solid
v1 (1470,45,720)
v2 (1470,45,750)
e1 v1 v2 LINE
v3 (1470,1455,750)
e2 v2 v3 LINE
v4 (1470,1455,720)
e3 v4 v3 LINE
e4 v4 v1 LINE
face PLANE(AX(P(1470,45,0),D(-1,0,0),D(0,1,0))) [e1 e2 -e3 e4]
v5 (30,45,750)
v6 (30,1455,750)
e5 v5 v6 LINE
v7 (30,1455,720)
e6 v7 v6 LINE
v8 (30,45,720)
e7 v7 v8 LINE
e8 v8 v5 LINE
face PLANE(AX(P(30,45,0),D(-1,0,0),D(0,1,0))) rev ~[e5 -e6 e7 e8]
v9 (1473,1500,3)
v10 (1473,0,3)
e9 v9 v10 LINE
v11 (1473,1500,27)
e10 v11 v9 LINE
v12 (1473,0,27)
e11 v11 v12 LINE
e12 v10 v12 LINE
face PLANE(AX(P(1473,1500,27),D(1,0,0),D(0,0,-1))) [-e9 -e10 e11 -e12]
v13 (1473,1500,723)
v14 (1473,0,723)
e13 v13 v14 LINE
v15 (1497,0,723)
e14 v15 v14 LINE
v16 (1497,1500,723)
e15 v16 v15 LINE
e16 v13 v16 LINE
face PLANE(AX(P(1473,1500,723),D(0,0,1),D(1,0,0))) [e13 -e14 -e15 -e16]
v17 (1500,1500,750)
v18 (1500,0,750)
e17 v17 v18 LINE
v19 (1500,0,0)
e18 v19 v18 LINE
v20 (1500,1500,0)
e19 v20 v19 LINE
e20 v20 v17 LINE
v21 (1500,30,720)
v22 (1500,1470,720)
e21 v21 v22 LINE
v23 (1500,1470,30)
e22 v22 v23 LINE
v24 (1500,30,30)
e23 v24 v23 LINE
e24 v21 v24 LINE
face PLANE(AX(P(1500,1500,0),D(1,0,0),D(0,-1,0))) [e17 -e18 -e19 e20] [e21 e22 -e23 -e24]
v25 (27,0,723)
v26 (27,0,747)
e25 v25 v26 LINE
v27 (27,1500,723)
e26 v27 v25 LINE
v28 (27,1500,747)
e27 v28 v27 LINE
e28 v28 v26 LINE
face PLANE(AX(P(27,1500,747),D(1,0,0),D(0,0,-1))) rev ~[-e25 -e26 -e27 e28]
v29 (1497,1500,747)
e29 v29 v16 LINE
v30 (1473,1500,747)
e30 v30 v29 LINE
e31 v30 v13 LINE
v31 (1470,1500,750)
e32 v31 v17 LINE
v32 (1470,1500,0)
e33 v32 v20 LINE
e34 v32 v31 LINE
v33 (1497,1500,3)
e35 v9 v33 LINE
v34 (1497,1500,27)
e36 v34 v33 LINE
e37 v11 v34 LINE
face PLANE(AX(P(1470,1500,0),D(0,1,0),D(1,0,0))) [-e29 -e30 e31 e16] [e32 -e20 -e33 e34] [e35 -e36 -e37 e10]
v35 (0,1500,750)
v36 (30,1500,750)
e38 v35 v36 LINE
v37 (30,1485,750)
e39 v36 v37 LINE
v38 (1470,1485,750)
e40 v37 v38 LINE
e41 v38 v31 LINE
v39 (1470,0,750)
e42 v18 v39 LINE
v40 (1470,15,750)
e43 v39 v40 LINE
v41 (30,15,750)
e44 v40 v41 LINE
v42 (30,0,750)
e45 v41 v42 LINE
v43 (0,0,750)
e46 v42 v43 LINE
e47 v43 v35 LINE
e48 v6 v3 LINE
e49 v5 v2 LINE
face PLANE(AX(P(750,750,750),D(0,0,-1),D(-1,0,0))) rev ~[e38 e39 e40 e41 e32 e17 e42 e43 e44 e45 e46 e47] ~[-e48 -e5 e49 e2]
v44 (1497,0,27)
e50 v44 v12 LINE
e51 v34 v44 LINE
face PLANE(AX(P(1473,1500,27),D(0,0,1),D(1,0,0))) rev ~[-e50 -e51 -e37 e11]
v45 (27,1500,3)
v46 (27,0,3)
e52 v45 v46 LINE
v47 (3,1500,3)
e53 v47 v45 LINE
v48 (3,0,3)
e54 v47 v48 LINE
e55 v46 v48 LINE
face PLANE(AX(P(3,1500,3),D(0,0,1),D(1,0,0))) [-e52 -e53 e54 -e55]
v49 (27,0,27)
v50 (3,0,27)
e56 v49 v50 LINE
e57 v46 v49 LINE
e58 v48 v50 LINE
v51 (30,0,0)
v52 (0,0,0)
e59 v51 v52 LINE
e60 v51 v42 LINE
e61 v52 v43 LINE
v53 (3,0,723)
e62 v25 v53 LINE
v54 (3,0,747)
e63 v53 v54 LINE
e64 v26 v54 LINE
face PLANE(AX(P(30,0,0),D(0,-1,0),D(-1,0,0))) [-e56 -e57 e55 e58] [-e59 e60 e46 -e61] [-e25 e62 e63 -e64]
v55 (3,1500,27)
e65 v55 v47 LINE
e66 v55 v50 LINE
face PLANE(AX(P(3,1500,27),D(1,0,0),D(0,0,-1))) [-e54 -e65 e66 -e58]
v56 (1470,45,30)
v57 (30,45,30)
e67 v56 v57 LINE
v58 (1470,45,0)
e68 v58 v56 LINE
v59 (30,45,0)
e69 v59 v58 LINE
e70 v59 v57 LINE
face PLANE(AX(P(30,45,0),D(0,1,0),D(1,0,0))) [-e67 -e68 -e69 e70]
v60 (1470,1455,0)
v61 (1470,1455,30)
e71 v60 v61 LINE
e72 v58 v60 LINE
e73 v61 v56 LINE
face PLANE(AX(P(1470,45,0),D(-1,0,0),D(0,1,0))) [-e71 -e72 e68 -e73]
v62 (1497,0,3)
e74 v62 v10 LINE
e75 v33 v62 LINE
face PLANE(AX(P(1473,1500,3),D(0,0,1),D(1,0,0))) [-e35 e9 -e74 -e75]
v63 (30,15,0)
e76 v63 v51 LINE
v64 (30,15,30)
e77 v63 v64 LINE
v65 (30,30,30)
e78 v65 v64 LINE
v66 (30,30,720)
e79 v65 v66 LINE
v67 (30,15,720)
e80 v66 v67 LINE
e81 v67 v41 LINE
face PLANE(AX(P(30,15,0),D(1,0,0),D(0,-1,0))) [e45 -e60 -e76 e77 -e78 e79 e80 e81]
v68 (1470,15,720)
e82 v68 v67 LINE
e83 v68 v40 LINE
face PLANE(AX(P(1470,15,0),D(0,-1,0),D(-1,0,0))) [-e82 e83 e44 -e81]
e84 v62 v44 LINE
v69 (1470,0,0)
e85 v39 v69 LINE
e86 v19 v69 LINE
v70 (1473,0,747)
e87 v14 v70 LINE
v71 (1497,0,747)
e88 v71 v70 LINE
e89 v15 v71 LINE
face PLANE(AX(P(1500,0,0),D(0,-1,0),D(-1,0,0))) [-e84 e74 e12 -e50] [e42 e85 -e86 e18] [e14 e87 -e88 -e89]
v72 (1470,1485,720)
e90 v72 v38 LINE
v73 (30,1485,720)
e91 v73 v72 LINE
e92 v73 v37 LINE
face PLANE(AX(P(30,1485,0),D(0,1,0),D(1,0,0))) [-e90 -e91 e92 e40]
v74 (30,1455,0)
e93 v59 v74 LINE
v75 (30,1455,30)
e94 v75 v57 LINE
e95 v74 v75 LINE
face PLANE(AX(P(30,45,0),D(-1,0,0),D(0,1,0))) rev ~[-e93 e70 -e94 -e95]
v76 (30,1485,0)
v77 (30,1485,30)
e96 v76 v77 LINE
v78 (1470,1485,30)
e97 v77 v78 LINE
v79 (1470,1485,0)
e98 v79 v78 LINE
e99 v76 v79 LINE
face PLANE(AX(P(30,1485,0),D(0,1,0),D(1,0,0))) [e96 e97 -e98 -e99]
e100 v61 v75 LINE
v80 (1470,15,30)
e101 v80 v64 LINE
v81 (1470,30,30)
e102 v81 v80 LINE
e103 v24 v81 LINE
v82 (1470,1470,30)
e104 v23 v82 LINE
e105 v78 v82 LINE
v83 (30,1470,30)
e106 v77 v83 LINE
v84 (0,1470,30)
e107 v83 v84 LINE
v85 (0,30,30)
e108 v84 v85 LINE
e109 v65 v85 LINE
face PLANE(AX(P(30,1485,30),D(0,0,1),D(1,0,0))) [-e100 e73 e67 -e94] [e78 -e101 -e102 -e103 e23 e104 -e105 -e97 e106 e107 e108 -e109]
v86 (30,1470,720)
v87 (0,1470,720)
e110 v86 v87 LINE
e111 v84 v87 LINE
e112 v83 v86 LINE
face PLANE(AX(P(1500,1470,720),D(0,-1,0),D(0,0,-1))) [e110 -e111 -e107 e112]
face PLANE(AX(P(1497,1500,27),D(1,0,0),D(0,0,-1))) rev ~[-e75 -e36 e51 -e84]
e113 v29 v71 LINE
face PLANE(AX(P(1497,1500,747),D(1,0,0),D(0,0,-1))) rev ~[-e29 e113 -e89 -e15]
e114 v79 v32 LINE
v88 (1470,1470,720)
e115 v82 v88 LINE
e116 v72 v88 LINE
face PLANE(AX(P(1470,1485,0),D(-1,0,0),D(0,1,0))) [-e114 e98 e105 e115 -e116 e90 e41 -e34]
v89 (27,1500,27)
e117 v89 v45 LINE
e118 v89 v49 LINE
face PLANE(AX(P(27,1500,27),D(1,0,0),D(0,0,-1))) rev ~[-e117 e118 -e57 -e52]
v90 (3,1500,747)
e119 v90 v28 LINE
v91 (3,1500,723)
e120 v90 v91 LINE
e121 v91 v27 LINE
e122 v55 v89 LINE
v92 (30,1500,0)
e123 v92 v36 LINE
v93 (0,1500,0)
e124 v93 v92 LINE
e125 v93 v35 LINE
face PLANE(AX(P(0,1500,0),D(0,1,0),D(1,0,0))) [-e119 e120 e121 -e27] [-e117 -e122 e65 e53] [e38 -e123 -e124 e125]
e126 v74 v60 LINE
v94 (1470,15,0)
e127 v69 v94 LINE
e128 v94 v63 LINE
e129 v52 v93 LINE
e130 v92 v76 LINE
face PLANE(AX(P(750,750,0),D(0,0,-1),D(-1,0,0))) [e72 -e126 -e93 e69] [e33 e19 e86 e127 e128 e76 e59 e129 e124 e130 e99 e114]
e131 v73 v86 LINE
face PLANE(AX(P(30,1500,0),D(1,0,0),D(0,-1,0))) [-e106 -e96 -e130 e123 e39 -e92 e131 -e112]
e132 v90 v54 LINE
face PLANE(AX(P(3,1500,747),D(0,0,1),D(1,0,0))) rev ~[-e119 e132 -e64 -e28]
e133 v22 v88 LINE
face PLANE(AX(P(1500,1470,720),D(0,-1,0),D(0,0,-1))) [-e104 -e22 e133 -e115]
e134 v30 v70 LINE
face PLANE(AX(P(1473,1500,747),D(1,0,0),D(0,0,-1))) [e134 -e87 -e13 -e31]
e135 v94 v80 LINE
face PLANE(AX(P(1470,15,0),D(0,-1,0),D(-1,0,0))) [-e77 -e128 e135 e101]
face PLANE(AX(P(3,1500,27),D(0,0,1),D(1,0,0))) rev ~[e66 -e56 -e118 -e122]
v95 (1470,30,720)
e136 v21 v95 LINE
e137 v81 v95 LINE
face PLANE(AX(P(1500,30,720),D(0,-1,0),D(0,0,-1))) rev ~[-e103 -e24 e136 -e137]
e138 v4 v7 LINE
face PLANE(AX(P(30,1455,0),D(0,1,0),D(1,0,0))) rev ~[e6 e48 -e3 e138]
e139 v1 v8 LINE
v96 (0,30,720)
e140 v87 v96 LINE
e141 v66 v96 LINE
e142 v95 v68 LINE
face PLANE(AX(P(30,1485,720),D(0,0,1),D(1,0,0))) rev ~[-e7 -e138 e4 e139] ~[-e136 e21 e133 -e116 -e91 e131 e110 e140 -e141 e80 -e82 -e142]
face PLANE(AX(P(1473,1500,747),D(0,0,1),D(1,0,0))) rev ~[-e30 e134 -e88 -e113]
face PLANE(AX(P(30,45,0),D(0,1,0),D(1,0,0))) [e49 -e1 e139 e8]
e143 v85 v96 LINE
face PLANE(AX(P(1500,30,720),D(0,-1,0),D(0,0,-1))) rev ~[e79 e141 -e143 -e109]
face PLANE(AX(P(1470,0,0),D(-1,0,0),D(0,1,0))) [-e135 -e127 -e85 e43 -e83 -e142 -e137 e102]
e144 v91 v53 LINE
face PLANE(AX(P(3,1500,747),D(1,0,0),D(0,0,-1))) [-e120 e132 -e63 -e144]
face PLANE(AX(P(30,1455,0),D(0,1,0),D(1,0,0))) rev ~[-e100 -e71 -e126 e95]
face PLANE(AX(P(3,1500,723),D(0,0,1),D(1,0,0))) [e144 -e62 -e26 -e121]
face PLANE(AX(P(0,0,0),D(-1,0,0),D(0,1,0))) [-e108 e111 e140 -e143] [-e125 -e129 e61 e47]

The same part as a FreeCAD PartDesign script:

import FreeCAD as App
import Part
import Sketcher
from FreeCAD import Vector


def add_polygon(sketch, points):
    """Adds a closed chain of lines whose ends are joined by coincident constraints."""
    first, n = sketch.GeometryCount, len(points)
    for a, b in zip(points, points[1:] + points[:1]):
        sketch.addGeometry(Part.LineSegment(App.Vector(*a, 0), App.Vector(*b, 0)), False)
    for i in range(n):
        sketch.addConstraint(Sketcher.Constraint("Coincident", first + i, 2, first + (i + 1) % n, 1))

doc = App.newDocument("Part")
params = doc.addObject("Spreadsheet::Sheet", "Params")
for row, (alias, value) in enumerate([
    ("sketch1_width", "30 mm"),
    ("sketch1_width2", "1440 mm"),
    ("sketch1_height", "15 mm"),
    ("sketch1_height2", "1500 mm"),
    ("sketch1_height3", "1410 mm"),
    ("pad1_length", "750 mm"),
    ("sketch2_width", "1440 mm"),
    ("sketch2_height", "690 mm"),
    ("sketch3_width", "1440 mm"),
    ("sketch3_height", "690 mm"),
    ("sketch4_width", "24 mm"),
], start=1):
    params.set(f"A{row}", alias)
    params.set(f"B{row}", "=" + value)
    params.setAlias(f"B{row}", alias)

body = doc.addObject("PartDesign::Body", "Body")

# Sketch on XY plane
sketch1 = body.newObject("Sketcher::SketchObject", "Sketch")
sketch1.AttachmentSupport = (doc.getObject("XY_Plane"), [""])
sketch1.MapMode = "FlatFace"
add_polygon(sketch1, [(30, 1485), (30, 1500), (0, 1500), (0, 0), (30, 0), (30, 15), (1470, 15), (1470, 0), (1500, 0), (1500, 1500), (1470, 1500), (1470, 1485)])  # lines 0-11
add_polygon(sketch1, [(30, 45), (30, 1455), (1470, 1455), (1470, 45)])  # lines 12-15
sketch1.addConstraint(Sketcher.Constraint("Vertical", 0))
sketch1.addConstraint(Sketcher.Constraint("Horizontal", 1))
sketch1.addConstraint(Sketcher.Constraint("Vertical", 2))
sketch1.addConstraint(Sketcher.Constraint("Horizontal", 3))
sketch1.addConstraint(Sketcher.Constraint("Vertical", 4))
sketch1.addConstraint(Sketcher.Constraint("Horizontal", 5))
sketch1.addConstraint(Sketcher.Constraint("Vertical", 6))
sketch1.addConstraint(Sketcher.Constraint("Horizontal", 7))
sketch1.addConstraint(Sketcher.Constraint("Vertical", 8))
sketch1.addConstraint(Sketcher.Constraint("Horizontal", 9))
sketch1.addConstraint(Sketcher.Constraint("Vertical", 10))
sketch1.addConstraint(Sketcher.Constraint("Horizontal", 11))
sketch1.addConstraint(Sketcher.Constraint("Vertical", 12))
sketch1.addConstraint(Sketcher.Constraint("Horizontal", 13))
sketch1.addConstraint(Sketcher.Constraint("Vertical", 14))
sketch1.addConstraint(Sketcher.Constraint("Horizontal", 15))
sketch1.addConstraint(Sketcher.Constraint("Coincident", 2, 2, -1, 1))
sketch1.addConstraint(Sketcher.Constraint("PointOnObject", 6, 2, -1))
sketch1.addConstraint(Sketcher.Constraint("Horizontal", 1, 2, 8, 2))
sketch1.addConstraint(Sketcher.Constraint("Vertical", 0, 2, 3, 2))
sketch1.addConstraint(Sketcher.Constraint("Vertical", 6, 2, 9, 2))
sketch1.addConstraint(Sketcher.Constraint("Vertical", 11, 2, 12, 2))
sketch1.addConstraint(Sketcher.Constraint("Vertical", 10, 2, 13, 2))
sketch1.addConstraint(Sketcher.Constraint("Equal", 3, 7))
sketch1.addConstraint(Sketcher.Constraint("Equal", 0, 4))
sketch1.addConstraint(Sketcher.Constraint("DistanceX", 1, 2, 1, 1, 30.0))
sketch1.addConstraint(Sketcher.Constraint("DistanceX", 5, 1, 5, 2, 1440.0))
sketch1.addConstraint(Sketcher.Constraint("DistanceY", 0, 1, 0, 2, 15.0))
sketch1.addConstraint(Sketcher.Constraint("DistanceY", 2, 2, 2, 1, 1500.0))
sketch1.addConstraint(Sketcher.Constraint("DistanceY", 12, 1, 12, 2, 1410.0))
sketch1.addConstraint(Sketcher.Constraint("DistanceY", -1, 1, 12, 2, 1455.0))
sketch1.setExpression("Constraints[41]", "Params.sketch1_width")
sketch1.setExpression("Constraints[42]", "Params.sketch1_width2")
sketch1.setExpression("Constraints[43]", "Params.sketch1_height")
sketch1.setExpression("Constraints[44]", "Params.sketch1_height2")
sketch1.setExpression("Constraints[45]", "Params.sketch1_height3")
pad1 = body.newObject("PartDesign::Pad", "Pad")
pad1.Profile = sketch1
pad1.setExpression("Length", "Params.pad1_length")

# Sketch on YZ plane
sketch2 = body.newObject("Sketcher::SketchObject", "Sketch001")
sketch2.AttachmentSupport = (doc.getObject("YZ_Plane"), [""])
sketch2.MapMode = "FlatFace"
sketch2.AttachmentOffset = App.Placement(Vector(0, 0, 1500), App.Rotation())
add_polygon(sketch2, [(1470, 720), (30, 720), (30, 30), (1470, 30)])  # lines 0-3
sketch2.addConstraint(Sketcher.Constraint("Horizontal", 0))
sketch2.addConstraint(Sketcher.Constraint("Vertical", 1))
sketch2.addConstraint(Sketcher.Constraint("Horizontal", 2))
sketch2.addConstraint(Sketcher.Constraint("Vertical", 3))
sketch2.addConstraint(Sketcher.Constraint("DistanceX", 0, 2, 0, 1, 1440.0))
sketch2.addConstraint(Sketcher.Constraint("DistanceY", 1, 2, 1, 1, 690.0))
sketch2.addConstraint(Sketcher.Constraint("DistanceX", -1, 1, 0, 2, 30.0))
sketch2.addConstraint(Sketcher.Constraint("DistanceY", -1, 1, 0, 2, 720.0))
sketch2.setExpression("Constraints[8]", "Params.sketch2_width")
sketch2.setExpression("Constraints[9]", "Params.sketch2_height")
pocket1 = body.newObject("PartDesign::Pocket", "Pocket")
pocket1.Profile = sketch2
pocket1.Type = "ThroughAll"

# Sketch on XZ plane
sketch3 = body.newObject("Sketcher::SketchObject", "Sketch002")
sketch3.AttachmentSupport = (doc.getObject("XZ_Plane"), [""])
sketch3.MapMode = "FlatFace"
sketch3.AttachmentOffset = App.Placement(Vector(0, 0, -1485), App.Rotation())
add_polygon(sketch3, [(30, 30), (30, 720), (1470, 720), (1470, 30)])  # lines 0-3
sketch3.addConstraint(Sketcher.Constraint("Vertical", 0))
sketch3.addConstraint(Sketcher.Constraint("Horizontal", 1))
sketch3.addConstraint(Sketcher.Constraint("Vertical", 2))
sketch3.addConstraint(Sketcher.Constraint("Horizontal", 3))
sketch3.addConstraint(Sketcher.Constraint("DistanceX", 1, 1, 1, 2, 1440.0))
sketch3.addConstraint(Sketcher.Constraint("DistanceY", 0, 1, 0, 2, 690.0))
sketch3.addConstraint(Sketcher.Constraint("DistanceX", -1, 1, 0, 2, 30.0))
sketch3.addConstraint(Sketcher.Constraint("DistanceY", -1, 1, 0, 2, 720.0))
sketch3.setExpression("Constraints[8]", "Params.sketch3_width")
sketch3.setExpression("Constraints[9]", "Params.sketch3_height")
pocket2 = body.newObject("PartDesign::Pocket", "Pocket001")
pocket2.Profile = sketch3
pocket2.Type = "ThroughAll"
pocket2.Reversed = True

# Sketch on XZ plane
sketch4 = body.newObject("Sketcher::SketchObject", "Sketch003")
sketch4.AttachmentSupport = (doc.getObject("XZ_Plane"), [""])
sketch4.MapMode = "FlatFace"
sketch4.AttachmentOffset = App.Placement(Vector(0, 0, -1500), App.Rotation())
add_polygon(sketch4, [(3, 3), (3, 27), (27, 27), (27, 3)])  # lines 0-3
add_polygon(sketch4, [(1473, 723), (1473, 747), (1497, 747), (1497, 723)])  # lines 4-7
add_polygon(sketch4, [(1473, 3), (1473, 27), (1497, 27), (1497, 3)])  # lines 8-11
add_polygon(sketch4, [(3, 723), (3, 747), (27, 747), (27, 723)])  # lines 12-15
sketch4.addConstraint(Sketcher.Constraint("Vertical", 0))
sketch4.addConstraint(Sketcher.Constraint("Horizontal", 1))
sketch4.addConstraint(Sketcher.Constraint("Vertical", 2))
sketch4.addConstraint(Sketcher.Constraint("Horizontal", 3))
sketch4.addConstraint(Sketcher.Constraint("Vertical", 4))
sketch4.addConstraint(Sketcher.Constraint("Horizontal", 5))
sketch4.addConstraint(Sketcher.Constraint("Vertical", 6))
sketch4.addConstraint(Sketcher.Constraint("Horizontal", 7))
sketch4.addConstraint(Sketcher.Constraint("Vertical", 8))
sketch4.addConstraint(Sketcher.Constraint("Horizontal", 9))
sketch4.addConstraint(Sketcher.Constraint("Vertical", 10))
sketch4.addConstraint(Sketcher.Constraint("Horizontal", 11))
sketch4.addConstraint(Sketcher.Constraint("Vertical", 12))
sketch4.addConstraint(Sketcher.Constraint("Horizontal", 13))
sketch4.addConstraint(Sketcher.Constraint("Vertical", 14))
sketch4.addConstraint(Sketcher.Constraint("Horizontal", 15))
sketch4.addConstraint(Sketcher.Constraint("Horizontal", 1, 2, 8, 2))
sketch4.addConstraint(Sketcher.Constraint("Horizontal", 3, 2, 10, 2))
sketch4.addConstraint(Sketcher.Constraint("Horizontal", 5, 2, 12, 2))
sketch4.addConstraint(Sketcher.Constraint("Horizontal", 7, 2, 14, 2))
sketch4.addConstraint(Sketcher.Constraint("Vertical", 7, 2, 8, 2))
sketch4.addConstraint(Sketcher.Constraint("Vertical", 6, 2, 9, 2))
sketch4.addConstraint(Sketcher.Constraint("Vertical", 3, 2, 12, 2))
sketch4.addConstraint(Sketcher.Constraint("Vertical", 2, 2, 13, 2))
sketch4.addConstraint(Sketcher.Constraint("Equal", 3, 5))
sketch4.addConstraint(Sketcher.Constraint("Equal", 15, 0))
sketch4.addConstraint(Sketcher.Constraint("Equal", 2, 4))
sketch4.addConstraint(Sketcher.Constraint("DistanceX", 1, 1, 1, 2, 24.0))
sketch4.addConstraint(Sketcher.Constraint("DistanceX", -1, 1, 0, 2, 3.0))
sketch4.addConstraint(Sketcher.Constraint("DistanceY", -1, 1, 0, 2, 27.0))
sketch4.addConstraint(Sketcher.Constraint("DistanceX", -1, 1, 4, 2, 1473.0))
sketch4.addConstraint(Sketcher.Constraint("DistanceY", -1, 1, 4, 2, 747.0))
sketch4.setExpression("Constraints[43]", "Params.sketch4_width")
pocket3 = body.newObject("PartDesign::Pocket", "Pocket002")
pocket3.Profile = sketch4
pocket3.Type = "ThroughAll"
pocket3.Reversed = True

doc.recompute()
